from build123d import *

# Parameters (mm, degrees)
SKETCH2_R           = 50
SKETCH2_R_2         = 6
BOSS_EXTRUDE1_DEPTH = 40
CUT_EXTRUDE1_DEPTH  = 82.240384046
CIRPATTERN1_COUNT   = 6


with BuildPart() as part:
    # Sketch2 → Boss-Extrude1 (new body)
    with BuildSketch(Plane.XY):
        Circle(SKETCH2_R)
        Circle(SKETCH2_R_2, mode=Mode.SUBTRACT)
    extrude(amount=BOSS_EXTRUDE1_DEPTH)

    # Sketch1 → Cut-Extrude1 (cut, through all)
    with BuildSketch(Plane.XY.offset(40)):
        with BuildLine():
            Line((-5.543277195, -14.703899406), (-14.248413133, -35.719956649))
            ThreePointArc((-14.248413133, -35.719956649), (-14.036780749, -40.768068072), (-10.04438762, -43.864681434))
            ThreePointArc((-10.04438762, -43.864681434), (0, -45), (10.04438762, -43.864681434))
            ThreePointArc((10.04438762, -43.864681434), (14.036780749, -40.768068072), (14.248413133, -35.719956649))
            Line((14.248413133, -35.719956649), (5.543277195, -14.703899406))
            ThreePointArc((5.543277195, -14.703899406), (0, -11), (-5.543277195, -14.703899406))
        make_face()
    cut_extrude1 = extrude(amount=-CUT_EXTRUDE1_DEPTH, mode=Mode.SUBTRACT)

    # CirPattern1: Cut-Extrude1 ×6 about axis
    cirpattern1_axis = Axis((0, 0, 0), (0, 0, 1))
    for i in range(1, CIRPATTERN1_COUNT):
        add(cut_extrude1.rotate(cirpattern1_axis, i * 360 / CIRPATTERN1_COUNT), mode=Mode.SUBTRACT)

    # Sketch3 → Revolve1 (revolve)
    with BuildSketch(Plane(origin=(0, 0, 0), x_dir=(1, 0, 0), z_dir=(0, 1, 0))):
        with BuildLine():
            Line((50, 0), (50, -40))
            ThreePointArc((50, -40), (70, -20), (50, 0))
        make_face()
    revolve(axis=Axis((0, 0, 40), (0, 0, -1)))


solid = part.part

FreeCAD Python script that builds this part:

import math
import FreeCAD as App
import Part
import Sketcher
Q = App.Units.Quantity

doc = App.newDocument("Part")
params = doc.addObject("Spreadsheet::Sheet", "Params")
for row, (alias, value) in enumerate([
    ("sketch1_diameter", "100 mm"),
    ("sketch1_diameter2", "12 mm"),
    ("pad1_length", "40 mm"),
    ("sketch2_radius", "6 mm"),
    ("sketch2_radius2", "45 mm"),
    ("sketch3_radius", "20 mm"),
    ("revolution_angle", "360 deg"),
], start=1):
    params.set(f"A{row}", alias)
    params.set(f"B{row}", "=" + value)
    params.setAlias(f"B{row}", alias)

body = doc.addObject("PartDesign::Body", "Body")

# Sketch on XY plane
sketch1 = body.newObject("Sketcher::SketchObject", "Sketch")
sketch1.AttachmentSupport = (doc.getObject("XY_Plane"), [""])
sketch1.MapMode = "FlatFace"
sketch1.addGeometry(Part.Circle(App.Vector(0, 0, 0), App.Vector(0, 0, 1), 50), False)
sketch1.addGeometry(Part.Circle(App.Vector(0, 0, 0), App.Vector(0, 0, 1), 6), False)
sketch1.addConstraint(Sketcher.Constraint("Coincident", 0, 3, -1, 1))
sketch1.addConstraint(Sketcher.Constraint("Coincident", 1, 3, -1, 1))
sketch1.addConstraint(Sketcher.Constraint("Diameter", 0, Q("100 mm")))
sketch1.addConstraint(Sketcher.Constraint("Diameter", 1, Q("12 mm")))
sketch1.setExpression("Constraints[2]", "Params.sketch1_diameter")
sketch1.setExpression("Constraints[3]", "Params.sketch1_diameter2")
pad1 = body.newObject("PartDesign::Pad", "Pad")
pad1.Profile = sketch1
pad1.setExpression("Length", "Params.pad1_length")

# Sketch on XY plane
sketch2 = body.newObject("Sketcher::SketchObject", "Sketch001")
sketch2.AttachmentSupport = (doc.getObject("XY_Plane"), [""])
sketch2.MapMode = "FlatFace"
sketch2.AttachmentOffset = App.Placement(App.Vector(0, 0, 40), App.Rotation())
sketch2.addGeometry(Part.LineSegment(App.Vector(-6, -15, 0), App.Vector(-14, -36, 0)), False)
sketch2.addGeometry(Part.ArcOfCircle(Part.Circle(App.Vector(-9, -38, 0), App.Vector(0, 0, 1), 6), math.radians(158), math.radians(257)), False)
sketch2.addGeometry(Part.ArcOfCircle(Part.Circle(App.Vector(0, 0, 0), App.Vector(0, 0, 1), 45), math.radians(-103), math.radians(-77)), False)
sketch2.addGeometry(Part.ArcOfCircle(Part.Circle(App.Vector(9, -38, 0), App.Vector(0, 0, 1), 6), math.radians(-77), math.radians(22)), False)
sketch2.addGeometry(Part.LineSegment(App.Vector(14, -36, 0), App.Vector(6, -15, 0)), False)
sketch2.addGeometry(Part.ArcOfCircle(Part.Circle(App.Vector(0, -17, 0), App.Vector(0, 0, 1), 6), math.radians(22), math.radians(158)), False)
sketch2.addConstraint(Sketcher.Constraint("Tangent", 0, 2, 1, 1))
sketch2.addConstraint(Sketcher.Constraint("Tangent", 1, 2, 2, 1))
sketch2.addConstraint(Sketcher.Constraint("Tangent", 2, 2, 3, 1))
sketch2.addConstraint(Sketcher.Constraint("Tangent", 3, 2, 4, 1))
sketch2.addConstraint(Sketcher.Constraint("Tangent", 4, 2, 5, 1))
sketch2.addConstraint(Sketcher.Constraint("Tangent", 5, 2, 0, 1))
sketch2.addConstraint(Sketcher.Constraint("Coincident", 2, 3, -1, 1))
sketch2.addConstraint(Sketcher.Constraint("Equal", 1, 3))
sketch2.addConstraint(Sketcher.Constraint("Equal", 3, 5))
sketch2.addConstraint(Sketcher.Constraint("Symmetric", 0, 2, 3, 2, -2))
sketch2.addConstraint(Sketcher.Constraint("Radius", 1, Q("6 mm")))
sketch2.addConstraint(Sketcher.Constraint("Radius", 2, Q("45 mm")))
sketch2.addConstraint(Sketcher.Constraint("DistanceY", 5, 3, -1, 1, Q("17 mm")))
sketch2.addConstraint(Sketcher.Constraint("Angle", 0, Q("-112.5 deg")))
sketch2.setExpression("Constraints[10]", "Params.sketch2_radius")
sketch2.setExpression("Constraints[11]", "Params.sketch2_radius2")
pocket1 = body.newObject("PartDesign::Pocket", "Pocket")
pocket1.Profile = sketch2
pocket1.Type = "ThroughAll"
doc.recompute()

polarpattern = body.newObject("PartDesign::PolarPattern", "PolarPattern")
polarpattern.Originals = [pocket1]
polarpattern.Axis = (doc.getObject("Z_Axis"), [""])
polarpattern.Angle = 360
polarpattern.Occurrences = 6
body.Tip = polarpattern

# Sketch on XZ plane
sketch3 = body.newObject("Sketcher::SketchObject", "Sketch002")
sketch3.AttachmentSupport = (doc.getObject("XZ_Plane"), [""])
sketch3.MapMode = "FlatFace"
sketch3.addGeometry(Part.LineSegment(App.Vector(50, 0, 0), App.Vector(50, 40, 0)), False)
sketch3.addGeometry(Part.ArcOfCircle(Part.Circle(App.Vector(50, 20, 0), App.Vector(0, 0, 1), 20), math.radians(-90), math.radians(90)), False)
sketch3.addConstraint(Sketcher.Constraint("Coincident", 0, 1, 1, 1))
sketch3.addConstraint(Sketcher.Constraint("Coincident", 1, 2, 0, 2))
sketch3.addConstraint(Sketcher.Constraint("Vertical", 0))
sketch3.addConstraint(Sketcher.Constraint("PointOnObject", 0, 1, -1))
sketch3.addConstraint(Sketcher.Constraint("Vertical", 1, 3, 0, 1))
sketch3.addConstraint(Sketcher.Constraint("Radius", 1, Q("20 mm")))
sketch3.addConstraint(Sketcher.Constraint("DistanceX", -1, 1, 1, 3, Q("50 mm")))
sketch3.setExpression("Constraints[5]", "Params.sketch3_radius")
revolution = body.newObject("PartDesign::Revolution", "Revolution")
revolution.Profile = sketch3
revolution.ReferenceAxis = (sketch3, ["V_Axis"])
revolution.setExpression("Angle", "Params.revolution_angle")

doc.recompute()
